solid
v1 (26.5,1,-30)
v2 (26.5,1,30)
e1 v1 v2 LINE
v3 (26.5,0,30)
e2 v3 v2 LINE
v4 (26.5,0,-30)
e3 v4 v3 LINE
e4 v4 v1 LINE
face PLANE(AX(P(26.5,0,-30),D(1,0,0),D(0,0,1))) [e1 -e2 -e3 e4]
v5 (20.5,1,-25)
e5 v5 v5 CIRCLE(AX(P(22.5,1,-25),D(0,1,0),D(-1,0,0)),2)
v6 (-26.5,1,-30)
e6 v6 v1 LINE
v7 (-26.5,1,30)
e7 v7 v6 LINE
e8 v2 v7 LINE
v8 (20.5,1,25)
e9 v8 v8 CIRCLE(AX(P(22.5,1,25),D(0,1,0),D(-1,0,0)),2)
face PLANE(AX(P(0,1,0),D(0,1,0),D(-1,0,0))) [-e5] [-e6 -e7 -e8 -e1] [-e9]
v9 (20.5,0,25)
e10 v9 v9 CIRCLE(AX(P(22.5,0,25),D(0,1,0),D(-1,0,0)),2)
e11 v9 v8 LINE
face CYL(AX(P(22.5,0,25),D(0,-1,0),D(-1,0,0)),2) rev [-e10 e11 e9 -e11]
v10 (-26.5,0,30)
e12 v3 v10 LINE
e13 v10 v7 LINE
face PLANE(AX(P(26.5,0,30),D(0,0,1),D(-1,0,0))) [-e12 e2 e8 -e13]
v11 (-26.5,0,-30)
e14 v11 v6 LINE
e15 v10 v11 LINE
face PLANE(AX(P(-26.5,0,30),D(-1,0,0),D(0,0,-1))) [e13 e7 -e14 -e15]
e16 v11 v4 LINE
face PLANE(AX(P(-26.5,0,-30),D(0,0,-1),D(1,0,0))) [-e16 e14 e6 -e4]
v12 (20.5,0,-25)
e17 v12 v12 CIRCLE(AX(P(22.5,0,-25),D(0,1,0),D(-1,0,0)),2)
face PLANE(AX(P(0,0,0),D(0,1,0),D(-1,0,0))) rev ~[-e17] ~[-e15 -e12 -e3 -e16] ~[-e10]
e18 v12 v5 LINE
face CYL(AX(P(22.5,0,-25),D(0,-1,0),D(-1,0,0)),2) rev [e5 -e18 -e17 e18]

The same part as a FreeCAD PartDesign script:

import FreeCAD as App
import Part
import Sketcher

V = App.Vector

doc = App.newDocument("Part")
params = doc.addObject("Spreadsheet::Sheet", "Params")
for row, (alias, value) in enumerate([
    ("sketch1_diameter", "4 mm"),
    ("sketch1_width", "53 mm"),
    ("sketch1_height", "60 mm"),
    ("pad1_length", "1 mm"),
], start=1):
    params.set(f"A{row}", alias)
    params.set(f"B{row}", "=" + value)
    params.setAlias(f"B{row}", alias)

body = doc.addObject("PartDesign::Body", "Body")

sketch1 = doc.addObject("Sketcher::SketchObject", "Sketch")
body.addObject(sketch1)
sketch1.AttachmentSupport = (doc.XZ_Plane, [""])
sketch1.MapMode = "FlatFace"
sketch1.addGeometry([
    Part.LineSegment(V(-26.5, 30, 0), V(26.5, 30, 0)),
    Part.LineSegment(V(26.5, 30, 0), V(26.5, -30, 0)),
    Part.LineSegment(V(26.5, -30, 0), V(-26.5, -30, 0)),
    Part.LineSegment(V(-26.5, -30, 0), V(-26.5, 30, 0)),
    Part.Circle(V(22.5, -25, 0), V(0, 0, 1), 2),
    Part.Circle(V(22.5, 25, 0), V(0, 0, 1), 2),
], False)
sketch1.addConstraint([
    Sketcher.Constraint("Coincident", 0, 2, 1, 1),
    Sketcher.Constraint("Coincident", 1, 2, 2, 1),
    Sketcher.Constraint("Coincident", 2, 2, 3, 1),
    Sketcher.Constraint("Coincident", 3, 2, 0, 1),
    Sketcher.Constraint("Horizontal", 0),
    Sketcher.Constraint("Vertical", 1),
    Sketcher.Constraint("Horizontal", 2),
    Sketcher.Constraint("Vertical", 3),
    Sketcher.Constraint("Equal", 4, 5),
    Sketcher.Constraint("Symmetric", 0, 2, 2, 2, -1, 1),
    Sketcher.Constraint("Symmetric", 4, 3, 5, 3, -1),
    Sketcher.Constraint("Diameter", 4, 4.0),
    Sketcher.Constraint("DistanceX", 0, 1, 0, 2, 53.0),
    Sketcher.Constraint("DistanceY", 1, 2, 1, 1, 60.0),
    Sketcher.Constraint("DistanceY", 4, 3, 5, 3, 50.0),
    Sketcher.Constraint("DistanceX", 5, 3, 0, 2, 4.0),
])
sketch1.setExpression("Constraints[11]", "Params.sketch1_diameter")
sketch1.setExpression("Constraints[12]", "Params.sketch1_width")
sketch1.setExpression("Constraints[13]", "Params.sketch1_height")
pad1 = doc.addObject("PartDesign::Pad", "Pad")
body.addObject(pad1)
pad1.Profile = sketch1
pad1.setExpression("Length", "Params.pad1_length")
pad1.Reversed = True

doc.recompute()
